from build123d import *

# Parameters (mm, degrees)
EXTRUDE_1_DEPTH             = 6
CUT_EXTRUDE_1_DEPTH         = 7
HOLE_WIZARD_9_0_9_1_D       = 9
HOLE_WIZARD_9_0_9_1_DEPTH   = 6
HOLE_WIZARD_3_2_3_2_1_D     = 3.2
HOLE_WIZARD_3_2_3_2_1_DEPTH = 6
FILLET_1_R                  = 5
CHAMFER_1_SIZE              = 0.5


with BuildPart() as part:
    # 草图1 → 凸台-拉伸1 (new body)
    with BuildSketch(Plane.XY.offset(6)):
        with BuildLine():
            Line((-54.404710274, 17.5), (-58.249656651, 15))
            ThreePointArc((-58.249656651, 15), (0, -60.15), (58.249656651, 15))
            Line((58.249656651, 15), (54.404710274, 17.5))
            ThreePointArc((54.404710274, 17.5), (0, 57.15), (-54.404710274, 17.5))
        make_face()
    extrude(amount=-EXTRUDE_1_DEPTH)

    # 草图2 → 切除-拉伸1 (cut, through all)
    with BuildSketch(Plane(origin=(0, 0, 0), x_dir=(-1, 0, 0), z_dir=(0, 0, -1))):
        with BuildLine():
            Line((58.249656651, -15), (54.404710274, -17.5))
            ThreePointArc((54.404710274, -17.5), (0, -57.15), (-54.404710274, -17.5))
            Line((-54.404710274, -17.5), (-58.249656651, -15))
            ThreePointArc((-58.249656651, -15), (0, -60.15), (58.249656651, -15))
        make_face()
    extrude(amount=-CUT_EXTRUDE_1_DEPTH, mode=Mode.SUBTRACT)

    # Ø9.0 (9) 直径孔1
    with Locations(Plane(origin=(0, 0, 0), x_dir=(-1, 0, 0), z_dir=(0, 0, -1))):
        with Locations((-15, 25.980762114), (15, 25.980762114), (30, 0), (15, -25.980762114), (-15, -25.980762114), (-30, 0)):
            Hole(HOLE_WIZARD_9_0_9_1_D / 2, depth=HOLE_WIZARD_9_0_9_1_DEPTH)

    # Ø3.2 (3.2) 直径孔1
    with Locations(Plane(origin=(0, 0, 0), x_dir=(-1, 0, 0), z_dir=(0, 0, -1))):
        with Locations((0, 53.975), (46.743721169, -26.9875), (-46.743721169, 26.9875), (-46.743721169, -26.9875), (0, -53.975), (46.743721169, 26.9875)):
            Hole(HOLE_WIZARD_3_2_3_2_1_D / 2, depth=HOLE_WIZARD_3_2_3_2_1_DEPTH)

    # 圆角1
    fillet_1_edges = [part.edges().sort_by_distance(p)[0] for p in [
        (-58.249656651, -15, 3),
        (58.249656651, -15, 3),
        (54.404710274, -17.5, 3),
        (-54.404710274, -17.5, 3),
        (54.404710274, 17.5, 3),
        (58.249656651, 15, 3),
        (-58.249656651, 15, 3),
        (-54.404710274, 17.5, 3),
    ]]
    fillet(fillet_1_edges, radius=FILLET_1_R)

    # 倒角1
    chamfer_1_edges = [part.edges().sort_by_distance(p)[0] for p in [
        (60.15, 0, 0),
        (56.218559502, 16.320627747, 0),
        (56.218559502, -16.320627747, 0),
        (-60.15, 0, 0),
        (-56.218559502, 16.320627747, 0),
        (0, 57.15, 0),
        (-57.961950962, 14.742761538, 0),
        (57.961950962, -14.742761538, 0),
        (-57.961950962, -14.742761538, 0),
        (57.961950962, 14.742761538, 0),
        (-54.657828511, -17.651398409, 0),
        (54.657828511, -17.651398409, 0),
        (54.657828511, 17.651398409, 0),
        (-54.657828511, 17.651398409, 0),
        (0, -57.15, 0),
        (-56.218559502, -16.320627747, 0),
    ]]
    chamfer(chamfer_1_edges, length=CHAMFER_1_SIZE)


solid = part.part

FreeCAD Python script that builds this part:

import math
import FreeCAD as App
import Part
import Sketcher
Q = App.Units.Quantity


def edges_at(feature, points):
    """Names of the edges that pass closest to the given points."""
    edges = feature.Shape.Edges
    near = lambda p: min(range(len(edges)), key=lambda i: edges[i].distToShape(Part.Vertex(*p))[0])
    return sorted({f"Edge{near(p) + 1}" for p in points})

doc = App.newDocument("Part")
body = doc.addObject("PartDesign::Body", "Body")

# Sketch on XY plane
sketch1 = body.newObject("Sketcher::SketchObject", "Sketch")
sketch1.AttachmentSupport = (doc.getObject("XY_Plane"), [""])
sketch1.MapMode = "FlatFace"
sketch1.AttachmentOffset = App.Placement(App.Vector(0, 0, 6), App.Rotation())
sketch1.addGeometry(Part.LineSegment(App.Vector(-54.4, 17.5, 0), App.Vector(-58.2, 15, 0)), False)
sketch1.addGeometry(Part.ArcOfCircle(Part.Circle(App.Vector(0, 0, 0), App.Vector(0, 0, 1), 60.1), math.radians(166), math.radians(374)), False)
sketch1.addGeometry(Part.LineSegment(App.Vector(58.2, 15, 0), App.Vector(54.4, 17.5, 0)), False)
sketch1.addGeometry(Part.ArcOfCircle(Part.Circle(App.Vector(0, 0, 0), App.Vector(0, 0, 1), 57.1), math.radians(18), math.radians(162)), False)
sketch1.addConstraint(Sketcher.Constraint("Coincident", 0, 2, 1, 1))
sketch1.addConstraint(Sketcher.Constraint("Coincident", 1, 2, 2, 1))
sketch1.addConstraint(Sketcher.Constraint("Coincident", 2, 2, 3, 1))
sketch1.addConstraint(Sketcher.Constraint("Coincident", 3, 2, 0, 1))
sketch1.addConstraint(Sketcher.Constraint("Coincident", 1, 3, -1, 1))
sketch1.addConstraint(Sketcher.Constraint("Coincident", 3, 3, -1, 1))
sketch1.addConstraint(Sketcher.Constraint("Horizontal", 0, 2, 1, 2))
sketch1.addConstraint(Sketcher.Constraint("Horizontal", 2, 2, 3, 2))
sketch1.addConstraint(Sketcher.Constraint("Radius", 1, Q("60.15 mm")))
sketch1.addConstraint(Sketcher.Constraint("Radius", 3, Q("57.15 mm")))
sketch1.addConstraint(Sketcher.Constraint("DistanceY", -1, 1, 0, 2, Q("15 mm")))
sketch1.addConstraint(Sketcher.Constraint("DistanceY", -1, 1, 2, 2, Q("17.5 mm")))
pad1 = body.newObject("PartDesign::Pad", "Pad")
pad1.Profile = sketch1
pad1.Length = 6
pad1.Reversed = True

# Sketch on XY plane
sketch2 = body.newObject("Sketcher::SketchObject", "Sketch001")
sketch2.AttachmentSupport = (doc.getObject("XY_Plane"), [""])
sketch2.MapMode = "FlatFace"
sketch2.addGeometry(Part.LineSegment(App.Vector(-58.2, -15, 0), App.Vector(-54.4, -17.5, 0)), False)
sketch2.addGeometry(Part.ArcOfCircle(Part.Circle(App.Vector(0, 0, 0), App.Vector(0, 0, 1), 57.1), math.radians(-162), math.radians(-18)), False)
sketch2.addGeometry(Part.LineSegment(App.Vector(54.4, -17.5, 0), App.Vector(58.2, -15, 0)), False)
sketch2.addGeometry(Part.ArcOfCircle(Part.Circle(App.Vector(0, 0, 0), App.Vector(0, 0, 1), 60.1), math.radians(-166), math.radians(-14)), False)
sketch2.addConstraint(Sketcher.Constraint("Coincident", 0, 2, 1, 1))
sketch2.addConstraint(Sketcher.Constraint("Coincident", 1, 2, 2, 1))
sketch2.addConstraint(Sketcher.Constraint("Coincident", 2, 2, 3, 2))
sketch2.addConstraint(Sketcher.Constraint("Coincident", 3, 1, 0, 1))
sketch2.addConstraint(Sketcher.Constraint("Coincident", 1, 3, -1, 1))
sketch2.addConstraint(Sketcher.Constraint("Coincident", 3, 3, -1, 1))
sketch2.addConstraint(Sketcher.Constraint("Horizontal", 0, 2, 1, 2))
sketch2.addConstraint(Sketcher.Constraint("Horizontal", 2, 2, 3, 1))
sketch2.addConstraint(Sketcher.Constraint("Radius", 1, Q("57.15 mm")))
sketch2.addConstraint(Sketcher.Constraint("Radius", 3, Q("60.15 mm")))
sketch2.addConstraint(Sketcher.Constraint("DistanceY", 2, 2, -1, 1, Q("15 mm")))
sketch2.addConstraint(Sketcher.Constraint("DistanceY", 0, 2, -1, 1, Q("17.5 mm")))
pocket1 = body.newObject("PartDesign::Pocket", "Pocket")
pocket1.Profile = sketch2
pocket1.Type = "ThroughAll"
pocket1.Reversed = True

# Sketch on XY plane
sketch3 = body.newObject("Sketcher::SketchObject", "Sketch002")
sketch3.AttachmentSupport = (doc.getObject("XY_Plane"), [""])
sketch3.MapMode = "FlatFace"
sketch3.addGeometry(Part.Circle(App.Vector(15, 26, 0), App.Vector(0, 0, 1), 4.5), False)
sketch3.addGeometry(Part.Circle(App.Vector(-15, 26, 0), App.Vector(0, 0, 1), 4.5), False)
sketch3.addGeometry(Part.Circle(App.Vector(-30, 0, 0), App.Vector(0, 0, 1), 4.5), False)
sketch3.addGeometry(Part.Circle(App.Vector(-15, -26, 0), App.Vector(0, 0, 1), 4.5), False)
sketch3.addGeometry(Part.Circle(App.Vector(15, -26, 0), App.Vector(0, 0, 1), 4.5), False)
sketch3.addGeometry(Part.Circle(App.Vector(30, 0, 0), App.Vector(0, 0, 1), 4.5), False)
sketch3.addConstraint(Sketcher.Constraint("Equal", 0, 1))
sketch3.addConstraint(Sketcher.Constraint("Equal", 1, 2))
sketch3.addConstraint(Sketcher.Constraint("Equal", 2, 3))
sketch3.addConstraint(Sketcher.Constraint("Equal", 3, 4))
sketch3.addConstraint(Sketcher.Constraint("Equal", 4, 5))
sketch3.addConstraint(Sketcher.Constraint("Symmetric", 0, 3, 3, 3, -1, 1))
sketch3.addConstraint(Sketcher.Constraint("Symmetric", 1, 3, 4, 3, -1, 1))
sketch3.addConstraint(Sketcher.Constraint("Symmetric", 2, 3, 5, 3, -1, 1))
sketch3.addConstraint(Sketcher.Constraint("Symmetric", 0, 3, 1, 3, -2))
sketch3.addConstraint(Sketcher.Constraint("PointOnObject", 2, 3, -1))
sketch3.addConstraint(Sketcher.Constraint("Diameter", 0, Q("9 mm")))
sketch3.addConstraint(Sketcher.Constraint("DistanceX", -1, 1, 0, 3, Q("15 mm")))
sketch3.addConstraint(Sketcher.Constraint("DistanceX", 2, 3, -1, 1, Q("30 mm")))
sketch3.addConstraint(Sketcher.Constraint("DistanceY", -1, 1, 0, 3, Q("25.980762 mm")))
doc.recompute()
hole = body.newObject("PartDesign::Hole", "Hole")
hole.Profile = sketch3
hole.ThreadType = "None"
hole.Diameter = 9
hole.DepthType = "Dimension"
hole.Depth = 6
hole.DrillPoint = "Flat"
hole.Reversed = True

# Sketch on XY plane
sketch4 = body.newObject("Sketcher::SketchObject", "Sketch003")
sketch4.AttachmentSupport = (doc.getObject("XY_Plane"), [""])
sketch4.MapMode = "FlatFace"
sketch4.addGeometry(Part.Circle(App.Vector(0, 54, 0), App.Vector(0, 0, 1), 1.6), False)
sketch4.addGeometry(Part.Circle(App.Vector(-46.7, -27, 0), App.Vector(0, 0, 1), 1.6), False)
sketch4.addGeometry(Part.Circle(App.Vector(46.7, 27, 0), App.Vector(0, 0, 1), 1.6), False)
sketch4.addGeometry(Part.Circle(App.Vector(46.7, -27, 0), App.Vector(0, 0, 1), 1.6), False)
sketch4.addGeometry(Part.Circle(App.Vector(0, -54, 0), App.Vector(0, 0, 1), 1.6), False)
sketch4.addGeometry(Part.Circle(App.Vector(-46.7, 27, 0), App.Vector(0, 0, 1), 1.6), False)
sketch4.addConstraint(Sketcher.Constraint("Equal", 0, 1))
sketch4.addConstraint(Sketcher.Constraint("Equal", 1, 2))
sketch4.addConstraint(Sketcher.Constraint("Equal", 2, 3))
sketch4.addConstraint(Sketcher.Constraint("Equal", 3, 4))
sketch4.addConstraint(Sketcher.Constraint("Equal", 4, 5))
sketch4.addConstraint(Sketcher.Constraint("Symmetric", 1, 3, 2, 3, -1, 1))
sketch4.addConstraint(Sketcher.Constraint("Symmetric", 0, 3, 4, 3, -1, 1))
sketch4.addConstraint(Sketcher.Constraint("Symmetric", 3, 3, 5, 3, -1, 1))
sketch4.addConstraint(Sketcher.Constraint("Symmetric", 1, 3, 3, 3, -2))
sketch4.addConstraint(Sketcher.Constraint("PointOnObject", 0, 3, -2))
sketch4.addConstraint(Sketcher.Constraint("Diameter", 0, Q("3.2 mm")))
sketch4.addConstraint(Sketcher.Constraint("DistanceY", 4, 3, 0, 3, Q("107.95 mm")))
sketch4.addConstraint(Sketcher.Constraint("DistanceY", 1, 3, 2, 3, Q("53.975 mm")))
sketch4.addConstraint(Sketcher.Constraint("DistanceX", 1, 3, -1, 1, Q("46.743721 mm")))
doc.recompute()
hole2 = body.newObject("PartDesign::Hole", "Hole001")
hole2.Profile = sketch4
hole2.ThreadType = "None"
hole2.Diameter = 3.2
hole2.DepthType = "Dimension"
hole2.Depth = 6
hole2.DrillPoint = "Flat"
hole2.Reversed = True
doc.recompute()

fillet = body.newObject("PartDesign::Fillet", "Fillet")
fillet.Base = (hole2, edges_at(hole2, [
    (-58.25, -15, 3),
    (58.25, -15, 3),
    (54.405, -17.5, 3),
    (-54.405, -17.5, 3),
    (54.405, 17.5, 3),
    (58.25, 15, 3),
    (-58.25, 15, 3),
    (-54.405, 17.5, 3),
]))
fillet.Radius = 5
doc.recompute()

chamfer = body.newObject("PartDesign::Chamfer", "Chamfer")
chamfer.Base = (fillet, edges_at(fillet, [
    (60.15, 0, 0),
    (56.219, 16.321, 0),
    (56.219, -16.321, 0),
    (-60.15, 0, 0),
    (-56.219, 16.321, 0),
    (0, 57.15, 0),
    (-57.962, 14.743, 0),
    (57.962, -14.743, 0),
    (-57.962, -14.743, 0),
    (57.962, 14.743, 0),
    (-54.658, -17.651, 0),
    (54.658, -17.651, 0),
    (54.658, 17.651, 0),
    (-54.658, 17.651, 0),
    (0, -57.15, 0),
    (-56.219, -16.321, 0),
]))
chamfer.Size = 0.5

doc.recompute()
